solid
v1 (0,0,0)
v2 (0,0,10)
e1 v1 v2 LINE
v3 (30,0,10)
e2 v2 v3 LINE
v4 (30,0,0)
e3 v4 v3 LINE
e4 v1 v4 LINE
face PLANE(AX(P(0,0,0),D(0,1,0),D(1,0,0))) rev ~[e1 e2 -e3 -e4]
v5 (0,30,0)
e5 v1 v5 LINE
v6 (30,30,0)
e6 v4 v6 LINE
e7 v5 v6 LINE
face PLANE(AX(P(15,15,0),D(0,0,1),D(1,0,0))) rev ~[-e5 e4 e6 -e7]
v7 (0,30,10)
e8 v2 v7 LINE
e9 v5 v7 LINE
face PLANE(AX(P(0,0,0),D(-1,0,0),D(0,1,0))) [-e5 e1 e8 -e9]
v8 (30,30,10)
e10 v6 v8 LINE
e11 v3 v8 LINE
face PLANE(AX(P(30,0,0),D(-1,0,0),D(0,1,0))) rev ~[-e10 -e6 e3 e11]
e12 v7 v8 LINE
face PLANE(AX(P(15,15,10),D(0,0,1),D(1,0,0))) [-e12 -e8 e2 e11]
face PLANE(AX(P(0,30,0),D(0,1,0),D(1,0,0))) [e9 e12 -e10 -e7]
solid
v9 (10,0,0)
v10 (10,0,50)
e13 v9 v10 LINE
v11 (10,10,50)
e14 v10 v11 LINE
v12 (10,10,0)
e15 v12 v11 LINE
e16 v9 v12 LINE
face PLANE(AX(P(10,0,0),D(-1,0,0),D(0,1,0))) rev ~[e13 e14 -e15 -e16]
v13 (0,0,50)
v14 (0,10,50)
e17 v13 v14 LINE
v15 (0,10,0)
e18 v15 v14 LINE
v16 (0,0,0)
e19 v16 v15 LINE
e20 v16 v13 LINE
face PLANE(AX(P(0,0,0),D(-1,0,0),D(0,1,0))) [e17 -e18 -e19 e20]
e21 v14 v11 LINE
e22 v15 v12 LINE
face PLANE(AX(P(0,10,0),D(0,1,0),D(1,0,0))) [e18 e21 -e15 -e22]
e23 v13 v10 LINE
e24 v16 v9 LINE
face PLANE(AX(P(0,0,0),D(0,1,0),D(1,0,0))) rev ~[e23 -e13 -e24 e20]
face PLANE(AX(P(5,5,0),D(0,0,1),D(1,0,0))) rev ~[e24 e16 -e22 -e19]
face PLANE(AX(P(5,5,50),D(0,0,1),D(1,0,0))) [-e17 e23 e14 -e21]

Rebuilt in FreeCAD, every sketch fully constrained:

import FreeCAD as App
import Part
import Sketcher
from FreeCAD import Vector
Q = App.Units.Quantity

doc = App.newDocument("Part")
body = doc.addObject("PartDesign::Body", "Body")

sketch1 = body.newObject("Sketcher::SketchObject", "Sketch")
sketch1.AttachmentSupport = (doc.getObject("XY_Plane"), [""])
sketch1.MapMode = "FlatFace"
sketch1.addGeometry([
    Part.LineSegment(Vector(0, 30, 0), Vector(0, 0, 0)),
    Part.LineSegment(Vector(0, 0, 0), Vector(30, 0, 0)),
    Part.LineSegment(Vector(30, 0, 0), Vector(30, 30, 0)),
    Part.LineSegment(Vector(30, 30, 0), Vector(0, 30, 0)),
], False)
sketch1.addConstraint([
    Sketcher.Constraint("Coincident", 0, 2, 1, 1),
    Sketcher.Constraint("Coincident", 1, 2, 2, 1),
    Sketcher.Constraint("Coincident", 2, 2, 3, 1),
    Sketcher.Constraint("Coincident", 3, 2, 0, 1),
    Sketcher.Constraint("Vertical", 0),
    Sketcher.Constraint("Horizontal", 1),
    Sketcher.Constraint("Vertical", 2),
    Sketcher.Constraint("Horizontal", 3),
    Sketcher.Constraint("Coincident", 0, 2, -1, 1),
    Sketcher.Constraint("Equal", 3, 0),
    Sketcher.Constraint("DistanceX", 1, 1, 1, 2, Q("30 mm")),
])
pad1 = body.newObject("PartDesign::Pad", "Pad")
pad1.Profile = sketch1
pad1.Length = 10
body2 = doc.addObject("PartDesign::Body", "Body001")

sketch2 = body2.newObject("Sketcher::SketchObject", "Sketch001")
sketch2.AttachmentSupport = (doc.getObject("XY_Plane001"), [""])
sketch2.MapMode = "FlatFace"
sketch2.addGeometry([
    Part.LineSegment(Vector(0, 10, 0), Vector(0, 0, 0)),
    Part.LineSegment(Vector(0, 0, 0), Vector(10, 0, 0)),
    Part.LineSegment(Vector(10, 0, 0), Vector(10, 10, 0)),
    Part.LineSegment(Vector(10, 10, 0), Vector(0, 10, 0)),
], False)
sketch2.addConstraint([
    Sketcher.Constraint("Coincident", 0, 2, 1, 1),
    Sketcher.Constraint("Coincident", 1, 2, 2, 1),
    Sketcher.Constraint("Coincident", 2, 2, 3, 1),
    Sketcher.Constraint("Coincident", 3, 2, 0, 1),
    Sketcher.Constraint("Vertical", 0),
    Sketcher.Constraint("Horizontal", 1),
    Sketcher.Constraint("Vertical", 2),
    Sketcher.Constraint("Horizontal", 3),
    Sketcher.Constraint("Coincident", 0, 2, -1, 1),
    Sketcher.Constraint("Equal", 3, 0),
    Sketcher.Constraint("DistanceX", 1, 1, 1, 2, Q("10 mm")),
])
pad2 = body2.newObject("PartDesign::Pad", "Pad001")
pad2.Profile = sketch2
pad2.Length = 50

doc.recompute()
